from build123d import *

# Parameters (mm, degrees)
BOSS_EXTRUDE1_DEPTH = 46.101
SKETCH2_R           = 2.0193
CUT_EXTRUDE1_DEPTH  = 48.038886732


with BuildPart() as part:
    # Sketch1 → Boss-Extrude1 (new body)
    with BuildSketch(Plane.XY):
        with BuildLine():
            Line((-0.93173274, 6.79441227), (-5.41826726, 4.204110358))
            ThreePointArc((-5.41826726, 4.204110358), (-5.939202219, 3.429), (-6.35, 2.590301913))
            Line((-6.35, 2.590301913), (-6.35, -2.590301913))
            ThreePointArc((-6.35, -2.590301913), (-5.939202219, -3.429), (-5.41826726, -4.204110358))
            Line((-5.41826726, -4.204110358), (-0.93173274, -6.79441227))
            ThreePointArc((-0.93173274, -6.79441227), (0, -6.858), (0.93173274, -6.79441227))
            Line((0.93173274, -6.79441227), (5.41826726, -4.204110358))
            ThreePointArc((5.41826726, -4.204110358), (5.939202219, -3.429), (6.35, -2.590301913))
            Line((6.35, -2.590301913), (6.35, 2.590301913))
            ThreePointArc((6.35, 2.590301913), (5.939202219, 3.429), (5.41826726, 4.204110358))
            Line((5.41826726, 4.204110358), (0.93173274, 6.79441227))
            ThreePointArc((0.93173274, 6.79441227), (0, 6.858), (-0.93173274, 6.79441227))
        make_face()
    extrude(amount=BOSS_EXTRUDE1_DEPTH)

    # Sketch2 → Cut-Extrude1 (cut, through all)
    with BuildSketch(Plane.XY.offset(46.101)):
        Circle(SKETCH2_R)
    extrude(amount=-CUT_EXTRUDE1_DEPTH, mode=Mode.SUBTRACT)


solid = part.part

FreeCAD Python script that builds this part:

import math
import FreeCAD as App
import Part
import Sketcher
Q = App.Units.Quantity

doc = App.newDocument("Part")
body = doc.addObject("PartDesign::Body", "Body")

# Sketch on XY plane
sketch1 = body.newObject("Sketcher::SketchObject", "Sketch")
sketch1.AttachmentSupport = (doc.getObject("XY_Plane"), [""])
sketch1.MapMode = "FlatFace"
sketch1.addGeometry([
    Part.LineSegment(App.Vector(-0.9, 6.8, 0), App.Vector(-5.4, 4.2, 0)),  # 0
    Part.ArcOfCircle(Part.Circle(App.Vector(0, 0, 0), App.Vector(0, 0, 1), 6.9), math.radians(142.19), math.radians(157.81)),  # 1
    Part.LineSegment(App.Vector(-6.3, 2.6, 0), App.Vector(-6.3, -2.6, 0)),  # 2
    Part.ArcOfCircle(Part.Circle(App.Vector(0, 0, 0), App.Vector(0, 0, 1), 6.9), math.radians(-157.81), math.radians(-142.19)),  # 3
    Part.LineSegment(App.Vector(-5.4, -4.2, 0), App.Vector(-0.9, -6.8, 0)),  # 4
    Part.ArcOfCircle(Part.Circle(App.Vector(0, 0, 0), App.Vector(0, 0, 1), 6.9), math.radians(-97.81), math.radians(-82.19)),  # 5
    Part.LineSegment(App.Vector(0.9, -6.8, 0), App.Vector(5.4, -4.2, 0)),  # 6
    Part.ArcOfCircle(Part.Circle(App.Vector(0, 0, 0), App.Vector(0, 0, 1), 6.9), math.radians(-37.81), math.radians(-22.19)),  # 7
    Part.LineSegment(App.Vector(6.3, -2.6, 0), App.Vector(6.3, 2.6, 0)),  # 8
    Part.ArcOfCircle(Part.Circle(App.Vector(0, 0, 0), App.Vector(0, 0, 1), 6.9), math.radians(22.19), math.radians(37.81)),  # 9
    Part.LineSegment(App.Vector(5.4, 4.2, 0), App.Vector(0.9, 6.8, 0)),  # 10
    Part.ArcOfCircle(Part.Circle(App.Vector(0, 0, 0), App.Vector(0, 0, 1), 6.9), math.radians(82.19), math.radians(97.81)),  # 11
], False)
sketch1.addConstraint([
    Sketcher.Constraint("Coincident", 0, 2, 1, 1),
    Sketcher.Constraint("Coincident", 1, 2, 2, 1),
    Sketcher.Constraint("Coincident", 2, 2, 3, 1),
    Sketcher.Constraint("Coincident", 3, 2, 4, 1),
    Sketcher.Constraint("Coincident", 4, 2, 5, 1),
    Sketcher.Constraint("Coincident", 5, 2, 6, 1),
    Sketcher.Constraint("Coincident", 6, 2, 7, 1),
    Sketcher.Constraint("Coincident", 7, 2, 8, 1),
    Sketcher.Constraint("Coincident", 8, 2, 9, 1),
    Sketcher.Constraint("Coincident", 9, 2, 10, 1),
    Sketcher.Constraint("Coincident", 10, 2, 11, 1),
    Sketcher.Constraint("Coincident", 11, 2, 0, 1),
    Sketcher.Constraint("Vertical", 2),
    Sketcher.Constraint("Vertical", 8),
    Sketcher.Constraint("Coincident", 1, 3, -1, 1),
    Sketcher.Constraint("Coincident", 3, 3, -1, 1),
    Sketcher.Constraint("Coincident", 5, 3, -1, 1),
    Sketcher.Constraint("Coincident", 7, 3, -1, 1),
    Sketcher.Constraint("Coincident", 9, 3, -1, 1),
    Sketcher.Constraint("Coincident", 11, 3, -1, 1),
    Sketcher.Constraint("Equal", 1, 3),
    Sketcher.Constraint("Equal", 3, 5),
    Sketcher.Constraint("Equal", 5, 7),
    Sketcher.Constraint("Equal", 7, 9),
    Sketcher.Constraint("Equal", 9, 11),
    Sketcher.Constraint("Parallel", 0, 6),
    Sketcher.Constraint("Parallel", 4, 10),
    Sketcher.Constraint("Horizontal", 4, 2, 5, 2),
    Sketcher.Constraint("Horizontal", 3, 2, 6, 2),
    Sketcher.Constraint("Horizontal", 2, 2, 7, 2),
    Sketcher.Constraint("Horizontal", 0, 2, 9, 2),
    Sketcher.Constraint("Vertical", 0, 2, 3, 2),
    Sketcher.Constraint("Radius", 1, Q("0.27 in")),
    Sketcher.Constraint("Angle", 0, Q("-150 deg")),
    Sketcher.Constraint("DistanceX", 1, 2, -1, 1, Q("0.25 in")),
    Sketcher.Constraint("DistanceX", 3, 2, 5, 2, Q("0.25 in")),
])
pad1 = body.newObject("PartDesign::Pad", "Pad")
pad1.Profile = sketch1
pad1.Length = Q("1.815 in")

# Sketch on XY plane
sketch2 = body.newObject("Sketcher::SketchObject", "Sketch001")
sketch2.AttachmentSupport = (doc.getObject("XY_Plane"), [""])
sketch2.MapMode = "FlatFace"
sketch2.AttachmentOffset = App.Placement(App.Vector(0, 0, 1.815 * 25.4), App.Rotation())
sketch2.addGeometry(Part.Circle(App.Vector(0, 0, 0), App.Vector(0, 0, 1), 2), False)
sketch2.addConstraint([
    Sketcher.Constraint("Coincident", 0, 3, -1, 1),
    Sketcher.Constraint("Diameter", 0, Q("0.159 in")),
])
pocket1 = body.newObject("PartDesign::Pocket", "Pocket")
pocket1.Profile = sketch2
pocket1.Type = "ThroughAll"

doc.recompute()
